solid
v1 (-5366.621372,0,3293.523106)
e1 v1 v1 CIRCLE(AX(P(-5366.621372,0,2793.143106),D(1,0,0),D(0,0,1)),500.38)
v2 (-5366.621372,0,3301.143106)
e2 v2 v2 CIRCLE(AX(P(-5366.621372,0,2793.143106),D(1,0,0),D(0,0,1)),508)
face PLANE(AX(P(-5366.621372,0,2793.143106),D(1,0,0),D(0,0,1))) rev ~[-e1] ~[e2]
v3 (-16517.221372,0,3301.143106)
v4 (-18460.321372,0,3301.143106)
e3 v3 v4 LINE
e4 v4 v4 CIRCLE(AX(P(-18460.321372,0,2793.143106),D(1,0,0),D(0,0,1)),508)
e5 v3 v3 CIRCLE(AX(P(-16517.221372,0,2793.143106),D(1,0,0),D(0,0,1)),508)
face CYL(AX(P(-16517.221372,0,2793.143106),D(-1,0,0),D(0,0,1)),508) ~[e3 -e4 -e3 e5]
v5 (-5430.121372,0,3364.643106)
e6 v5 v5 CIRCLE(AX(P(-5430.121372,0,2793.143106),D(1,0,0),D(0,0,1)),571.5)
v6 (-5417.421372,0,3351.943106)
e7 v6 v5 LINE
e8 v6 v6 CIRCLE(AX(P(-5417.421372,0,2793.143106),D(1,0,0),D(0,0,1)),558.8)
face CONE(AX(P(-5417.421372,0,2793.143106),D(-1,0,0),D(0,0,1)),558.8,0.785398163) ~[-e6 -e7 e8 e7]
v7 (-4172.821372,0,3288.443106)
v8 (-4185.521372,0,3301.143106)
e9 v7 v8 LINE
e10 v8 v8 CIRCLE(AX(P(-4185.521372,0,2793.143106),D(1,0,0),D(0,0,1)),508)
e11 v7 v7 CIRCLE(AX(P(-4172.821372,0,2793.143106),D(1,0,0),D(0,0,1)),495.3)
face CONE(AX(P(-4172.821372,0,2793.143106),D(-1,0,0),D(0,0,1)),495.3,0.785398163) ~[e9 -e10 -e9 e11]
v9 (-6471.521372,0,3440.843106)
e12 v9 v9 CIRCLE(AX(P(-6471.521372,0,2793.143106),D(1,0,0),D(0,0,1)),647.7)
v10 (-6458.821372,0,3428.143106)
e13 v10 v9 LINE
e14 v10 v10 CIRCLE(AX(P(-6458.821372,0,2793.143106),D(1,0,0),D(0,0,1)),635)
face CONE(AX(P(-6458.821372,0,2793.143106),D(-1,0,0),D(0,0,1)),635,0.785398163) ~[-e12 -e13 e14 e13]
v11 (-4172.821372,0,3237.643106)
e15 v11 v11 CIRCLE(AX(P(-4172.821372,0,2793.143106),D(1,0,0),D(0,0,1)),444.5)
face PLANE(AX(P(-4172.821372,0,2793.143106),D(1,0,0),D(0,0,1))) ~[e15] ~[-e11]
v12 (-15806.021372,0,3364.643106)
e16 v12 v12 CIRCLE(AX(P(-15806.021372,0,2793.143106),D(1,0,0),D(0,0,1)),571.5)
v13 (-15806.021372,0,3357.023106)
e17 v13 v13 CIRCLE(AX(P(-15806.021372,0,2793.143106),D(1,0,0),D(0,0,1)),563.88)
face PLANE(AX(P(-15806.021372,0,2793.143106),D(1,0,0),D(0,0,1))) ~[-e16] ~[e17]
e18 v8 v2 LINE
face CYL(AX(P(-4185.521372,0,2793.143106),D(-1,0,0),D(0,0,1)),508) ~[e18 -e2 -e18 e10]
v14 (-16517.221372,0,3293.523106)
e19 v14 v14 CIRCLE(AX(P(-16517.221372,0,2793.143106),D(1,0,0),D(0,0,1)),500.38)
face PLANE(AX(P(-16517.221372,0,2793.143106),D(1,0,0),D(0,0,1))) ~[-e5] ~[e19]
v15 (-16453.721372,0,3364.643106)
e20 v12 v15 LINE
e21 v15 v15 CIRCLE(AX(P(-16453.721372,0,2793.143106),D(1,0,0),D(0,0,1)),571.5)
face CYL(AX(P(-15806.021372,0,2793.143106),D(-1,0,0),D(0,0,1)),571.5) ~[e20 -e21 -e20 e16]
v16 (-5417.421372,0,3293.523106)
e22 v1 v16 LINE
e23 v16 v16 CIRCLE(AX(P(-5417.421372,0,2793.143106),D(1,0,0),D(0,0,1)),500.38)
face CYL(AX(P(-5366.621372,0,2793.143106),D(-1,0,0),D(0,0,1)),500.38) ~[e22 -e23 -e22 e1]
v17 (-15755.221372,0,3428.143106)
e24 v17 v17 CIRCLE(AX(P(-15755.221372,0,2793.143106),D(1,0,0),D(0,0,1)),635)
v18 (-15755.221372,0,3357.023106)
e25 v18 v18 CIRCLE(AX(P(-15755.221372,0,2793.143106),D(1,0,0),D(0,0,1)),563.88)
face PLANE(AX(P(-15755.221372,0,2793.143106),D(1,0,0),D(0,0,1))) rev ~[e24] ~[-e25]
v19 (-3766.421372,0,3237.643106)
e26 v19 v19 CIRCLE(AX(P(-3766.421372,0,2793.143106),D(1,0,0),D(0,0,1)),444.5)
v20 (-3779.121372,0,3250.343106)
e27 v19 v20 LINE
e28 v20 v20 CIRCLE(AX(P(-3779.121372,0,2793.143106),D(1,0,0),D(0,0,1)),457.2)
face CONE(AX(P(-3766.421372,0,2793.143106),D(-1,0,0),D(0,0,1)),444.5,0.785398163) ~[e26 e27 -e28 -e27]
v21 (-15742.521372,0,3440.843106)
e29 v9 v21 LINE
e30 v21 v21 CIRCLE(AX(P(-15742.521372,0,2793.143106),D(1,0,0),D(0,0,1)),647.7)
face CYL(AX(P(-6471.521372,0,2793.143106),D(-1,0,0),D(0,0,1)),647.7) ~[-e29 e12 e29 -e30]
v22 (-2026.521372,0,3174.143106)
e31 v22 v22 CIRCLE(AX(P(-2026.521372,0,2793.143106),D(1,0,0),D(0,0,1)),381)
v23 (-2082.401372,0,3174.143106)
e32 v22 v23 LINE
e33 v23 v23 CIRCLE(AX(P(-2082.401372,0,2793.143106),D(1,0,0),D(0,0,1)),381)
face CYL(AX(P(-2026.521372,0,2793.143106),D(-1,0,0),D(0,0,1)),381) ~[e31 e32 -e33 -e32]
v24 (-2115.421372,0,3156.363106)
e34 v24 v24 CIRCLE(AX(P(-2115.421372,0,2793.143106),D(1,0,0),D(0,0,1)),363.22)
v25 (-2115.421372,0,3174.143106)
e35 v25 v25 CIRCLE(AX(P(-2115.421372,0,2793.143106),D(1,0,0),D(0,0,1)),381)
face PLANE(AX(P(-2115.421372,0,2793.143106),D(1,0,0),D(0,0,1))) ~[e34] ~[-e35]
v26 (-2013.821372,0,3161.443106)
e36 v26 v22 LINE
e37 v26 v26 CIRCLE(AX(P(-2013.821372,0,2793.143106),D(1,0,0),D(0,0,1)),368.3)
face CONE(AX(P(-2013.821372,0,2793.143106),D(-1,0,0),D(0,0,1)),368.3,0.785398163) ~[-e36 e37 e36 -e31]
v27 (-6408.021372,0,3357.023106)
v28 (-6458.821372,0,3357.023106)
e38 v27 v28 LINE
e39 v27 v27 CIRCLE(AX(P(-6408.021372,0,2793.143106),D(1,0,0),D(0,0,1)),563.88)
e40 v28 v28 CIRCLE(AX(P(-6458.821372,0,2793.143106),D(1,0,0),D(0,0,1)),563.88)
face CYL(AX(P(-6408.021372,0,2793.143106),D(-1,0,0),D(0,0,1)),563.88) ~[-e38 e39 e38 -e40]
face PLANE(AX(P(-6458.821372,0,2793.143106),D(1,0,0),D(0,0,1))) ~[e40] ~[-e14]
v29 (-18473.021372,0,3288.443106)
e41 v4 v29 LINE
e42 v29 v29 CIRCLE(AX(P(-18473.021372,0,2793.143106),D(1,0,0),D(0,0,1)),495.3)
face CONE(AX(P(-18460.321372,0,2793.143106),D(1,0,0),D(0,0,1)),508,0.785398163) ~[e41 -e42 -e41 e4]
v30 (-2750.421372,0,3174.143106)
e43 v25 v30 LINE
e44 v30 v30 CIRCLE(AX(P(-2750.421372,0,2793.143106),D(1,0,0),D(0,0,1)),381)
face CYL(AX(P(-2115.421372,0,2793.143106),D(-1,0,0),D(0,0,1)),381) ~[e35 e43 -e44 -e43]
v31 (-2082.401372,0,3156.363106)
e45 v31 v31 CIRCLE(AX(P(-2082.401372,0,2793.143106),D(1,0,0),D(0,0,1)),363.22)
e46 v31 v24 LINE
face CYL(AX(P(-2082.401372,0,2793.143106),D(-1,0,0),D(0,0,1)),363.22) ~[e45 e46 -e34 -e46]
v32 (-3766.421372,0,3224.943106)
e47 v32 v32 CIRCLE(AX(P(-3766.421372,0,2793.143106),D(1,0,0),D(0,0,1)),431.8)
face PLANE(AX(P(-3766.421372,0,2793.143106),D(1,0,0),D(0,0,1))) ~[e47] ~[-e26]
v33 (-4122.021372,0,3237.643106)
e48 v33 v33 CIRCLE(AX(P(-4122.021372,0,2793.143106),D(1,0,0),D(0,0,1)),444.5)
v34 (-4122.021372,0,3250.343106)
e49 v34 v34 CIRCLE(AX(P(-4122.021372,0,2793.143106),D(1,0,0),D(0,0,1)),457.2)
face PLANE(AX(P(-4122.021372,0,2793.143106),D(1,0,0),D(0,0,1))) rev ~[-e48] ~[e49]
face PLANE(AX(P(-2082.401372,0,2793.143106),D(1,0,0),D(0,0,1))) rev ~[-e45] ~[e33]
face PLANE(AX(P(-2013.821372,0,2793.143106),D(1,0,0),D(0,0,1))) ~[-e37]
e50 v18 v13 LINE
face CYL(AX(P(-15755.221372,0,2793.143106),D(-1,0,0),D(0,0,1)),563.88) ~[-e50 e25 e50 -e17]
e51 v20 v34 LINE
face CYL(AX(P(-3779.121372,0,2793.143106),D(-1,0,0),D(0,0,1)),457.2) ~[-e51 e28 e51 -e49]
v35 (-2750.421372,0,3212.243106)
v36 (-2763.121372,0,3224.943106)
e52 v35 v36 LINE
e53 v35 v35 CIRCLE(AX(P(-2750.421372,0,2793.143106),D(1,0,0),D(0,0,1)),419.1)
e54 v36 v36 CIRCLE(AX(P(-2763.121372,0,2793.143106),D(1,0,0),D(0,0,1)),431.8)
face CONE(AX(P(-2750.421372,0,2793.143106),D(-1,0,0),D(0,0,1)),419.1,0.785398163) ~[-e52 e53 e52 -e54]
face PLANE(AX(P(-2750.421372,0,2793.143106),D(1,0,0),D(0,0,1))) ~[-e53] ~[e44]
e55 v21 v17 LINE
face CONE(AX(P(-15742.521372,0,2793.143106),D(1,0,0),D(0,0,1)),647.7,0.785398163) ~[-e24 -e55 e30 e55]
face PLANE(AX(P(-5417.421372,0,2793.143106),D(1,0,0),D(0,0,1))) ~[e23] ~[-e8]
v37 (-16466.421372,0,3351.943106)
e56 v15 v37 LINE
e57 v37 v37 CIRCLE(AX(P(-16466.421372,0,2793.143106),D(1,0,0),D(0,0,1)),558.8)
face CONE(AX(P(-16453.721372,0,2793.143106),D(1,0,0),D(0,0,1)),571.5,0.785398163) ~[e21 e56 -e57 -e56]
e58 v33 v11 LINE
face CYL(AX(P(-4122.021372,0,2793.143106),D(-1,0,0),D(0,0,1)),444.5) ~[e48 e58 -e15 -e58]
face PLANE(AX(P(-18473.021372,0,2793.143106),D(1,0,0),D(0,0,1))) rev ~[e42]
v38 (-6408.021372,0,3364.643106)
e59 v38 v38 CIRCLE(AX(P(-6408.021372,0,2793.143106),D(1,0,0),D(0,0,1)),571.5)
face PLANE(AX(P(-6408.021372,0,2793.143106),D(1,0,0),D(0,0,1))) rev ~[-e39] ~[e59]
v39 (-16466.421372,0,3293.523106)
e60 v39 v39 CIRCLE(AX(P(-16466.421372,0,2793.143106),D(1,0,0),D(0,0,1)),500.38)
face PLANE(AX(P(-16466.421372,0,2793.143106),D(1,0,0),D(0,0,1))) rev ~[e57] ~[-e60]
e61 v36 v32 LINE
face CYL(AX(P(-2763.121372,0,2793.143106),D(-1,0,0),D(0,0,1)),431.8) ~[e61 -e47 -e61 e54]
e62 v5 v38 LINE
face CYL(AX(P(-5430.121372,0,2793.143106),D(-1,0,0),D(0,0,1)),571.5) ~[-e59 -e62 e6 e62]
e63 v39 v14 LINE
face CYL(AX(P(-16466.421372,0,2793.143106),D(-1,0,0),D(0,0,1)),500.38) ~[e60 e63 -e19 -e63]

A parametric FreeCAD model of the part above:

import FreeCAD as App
import Part
import Sketcher

V = App.Vector
Q = App.Units.Quantity


def add_polygon(sketch, points):
    """Adds a closed chain of lines whose ends are joined by coincident constraints."""
    first, n = sketch.GeometryCount, len(points)
    for a, b in zip(points, points[1:] + points[:1]):
        sketch.addGeometry(Part.LineSegment(App.Vector(*a, 0), App.Vector(*b, 0)), False)
    for i in range(n):
        sketch.addConstraint(Sketcher.Constraint("Coincident", first + i, 2, first + (i + 1) % n, 1))

doc = App.newDocument("Part")
body = doc.addObject("PartDesign::Body", "Body")

sketch1 = body.newObject("Sketcher::SketchObject", "Sketch")
sketch1.AttachmentSupport = (doc.getObject("XZ_Plane"), [""])
sketch1.MapMode = "FlatFace"
add_polygon(sketch1, [(-2750, 3174), (-2750, 3212), (-2763, 3225), (-3766, 3225), (-3766, 3238), (-3779, 3250), (-4122, 3250), (-4122, 3238), (-4173, 3238), (-4173, 3288), (-4186, 3301), (-5367, 3301), (-5367, 3294), (-5417, 3294), (-5417, 3352), (-5430, 3365), (-6408, 3365), (-6408, 3357), (-6459, 3357), (-6459, 3428), (-6472, 3441), (-15743, 3441), (-15755, 3428), (-15755, 3357), (-15806, 3357), (-15806, 3365), (-16454, 3365), (-16466, 3352), (-16466, 3294), (-16517, 3294), (-16517, 3301), (-18460, 3301), (-18473, 3288), (-18473, 2793), (-2014, 2793), (-2014, 3161), (-2027, 3174), (-2082, 3174), (-2082, 3156), (-2115, 3156), (-2115, 3174)])
sketch1.addGeometry(Part.LineSegment(V(-18473, 2793, 0), V(-2014, 2793, 0)), True)
sketch1.addConstraint([
    Sketcher.Constraint("Vertical", 0),
    Sketcher.Constraint("Horizontal", 2),
    Sketcher.Constraint("Vertical", 3),
    Sketcher.Constraint("Horizontal", 5),
    Sketcher.Constraint("Vertical", 6),
    Sketcher.Constraint("Horizontal", 7),
    Sketcher.Constraint("Vertical", 8),
    Sketcher.Constraint("Horizontal", 10),
    Sketcher.Constraint("Vertical", 11),
    Sketcher.Constraint("Horizontal", 12),
    Sketcher.Constraint("Vertical", 13),
    Sketcher.Constraint("Horizontal", 15),
    Sketcher.Constraint("Vertical", 16),
    Sketcher.Constraint("Horizontal", 17),
    Sketcher.Constraint("Vertical", 18),
    Sketcher.Constraint("Horizontal", 20),
    Sketcher.Constraint("Vertical", 22),
    Sketcher.Constraint("Horizontal", 23),
    Sketcher.Constraint("Vertical", 24),
    Sketcher.Constraint("Horizontal", 25),
    Sketcher.Constraint("Vertical", 27),
    Sketcher.Constraint("Horizontal", 28),
    Sketcher.Constraint("Vertical", 29),
    Sketcher.Constraint("Horizontal", 30),
    Sketcher.Constraint("Vertical", 32),
    Sketcher.Constraint("Horizontal", 33),
    Sketcher.Constraint("Vertical", 34),
    Sketcher.Constraint("Horizontal", 36),
    Sketcher.Constraint("Vertical", 37),
    Sketcher.Constraint("Horizontal", 38),
    Sketcher.Constraint("Vertical", 39),
    Sketcher.Constraint("Horizontal", 40),
    Sketcher.Constraint("Horizontal", 41),
    Sketcher.Constraint("Coincident", 41, 1, 32, 2),
    Sketcher.Constraint("Parallel", 1, 4),
    Sketcher.Constraint("Parallel", 4, 9),
    Sketcher.Constraint("Parallel", 9, 14),
    Sketcher.Constraint("Parallel", 14, 19),
    Sketcher.Constraint("Perpendicular", 19, 21),
    Sketcher.Constraint("Parallel", 21, 26),
    Sketcher.Constraint("Parallel", 26, 31),
    Sketcher.Constraint("Perpendicular", 31, 35),
    Sketcher.Constraint("Horizontal", 3, 2, 6, 2),
    Sketcher.Constraint("Horizontal", 18, 2, 21, 2),
    Sketcher.Constraint("Horizontal", 17, 2, 22, 2),
    Sketcher.Constraint("Horizontal", 15, 2, 24, 2),
    Sketcher.Constraint("Horizontal", 13, 2, 26, 2),
    Sketcher.Constraint("Horizontal", 12, 2, 27, 2),
    Sketcher.Constraint("Horizontal", 10, 2, 29, 2),
    Sketcher.Constraint("Horizontal", 8, 2, 31, 2),
    Sketcher.Constraint("Horizontal", 36, 2, 39, 2),
    Sketcher.Constraint("Vertical", 34, 2, 41, 2),
    Sketcher.Constraint("Equal", 7, 12),
    Sketcher.Constraint("Equal", 12, 17),
    Sketcher.Constraint("Equal", 17, 23),
    Sketcher.Constraint("Equal", 23, 28),
    Sketcher.Constraint("Equal", 3, 6),
    Sketcher.Constraint("Equal", 28, 8),
    Sketcher.Constraint("Equal", 11, 16),
    Sketcher.Constraint("Equal", 1, 4),
    Sketcher.Constraint("Equal", 4, 9),
    Sketcher.Constraint("Equal", 9, 14),
    Sketcher.Constraint("Equal", 14, 19),
    Sketcher.Constraint("Equal", 19, 21),
    Sketcher.Constraint("Equal", 31, 35),
    Sketcher.Constraint("DistanceX", 7, 2, 7, 1, Q("2 in")),
    Sketcher.Constraint("DistanceX", 20, 2, 20, 1, Q("365 in")),
    Sketcher.Constraint("DistanceX", 33, 1, 33, 2, Q("648 in")),
    Sketcher.Constraint("DistanceX", 40, 2, 40, 1, Q("25 in")),
    Sketcher.Constraint("DistanceX", 2, 2, 2, 1, Q("39.5 in")),
    Sketcher.Constraint("DistanceX", 5, 2, 5, 1, Q("13.5 in")),
    Sketcher.Constraint("DistanceX", 10, 2, 10, 1, Q("46.5 in")),
    Sketcher.Constraint("DistanceX", 15, 2, 15, 1, Q("38.5 in")),
    Sketcher.Constraint("DistanceX", 25, 2, 25, 1, Q("25.5 in")),
    Sketcher.Constraint("DistanceX", 30, 2, 30, 1, Q("76.5 in")),
    Sketcher.Constraint("DistanceX", 36, 2, 36, 1, Q("2.2 in")),
    Sketcher.Constraint("DistanceX", 38, 2, 38, 1, Q("1.3 in")),
    Sketcher.Constraint("DistanceY", 0, 1, 0, 2, Q("1.5 in")),
    Sketcher.Constraint("DistanceY", 11, 2, 11, 1, Q("0.3 in")),
    Sketcher.Constraint("DistanceY", 13, 1, 13, 2, Q("2.3 in")),
    Sketcher.Constraint("DistanceY", 18, 1, 18, 2, Q("2.8 in")),
    Sketcher.Constraint("DistanceY", 32, 2, 32, 1, Q("19.5 in")),
    Sketcher.Constraint("DistanceY", 37, 2, 37, 1, Q("0.7 in")),
    Sketcher.Constraint("DistanceX", 0, 2, -1, 1, 2750.421372),
    Sketcher.Constraint("DistanceY", -1, 1, 0, 2, 3212.243106),
])
revolution = body.newObject("PartDesign::Revolution", "Revolution")
revolution.Profile = sketch1
revolution.ReferenceAxis = (sketch1, ["Axis0"])
revolution.Angle = 360

doc.recompute()
